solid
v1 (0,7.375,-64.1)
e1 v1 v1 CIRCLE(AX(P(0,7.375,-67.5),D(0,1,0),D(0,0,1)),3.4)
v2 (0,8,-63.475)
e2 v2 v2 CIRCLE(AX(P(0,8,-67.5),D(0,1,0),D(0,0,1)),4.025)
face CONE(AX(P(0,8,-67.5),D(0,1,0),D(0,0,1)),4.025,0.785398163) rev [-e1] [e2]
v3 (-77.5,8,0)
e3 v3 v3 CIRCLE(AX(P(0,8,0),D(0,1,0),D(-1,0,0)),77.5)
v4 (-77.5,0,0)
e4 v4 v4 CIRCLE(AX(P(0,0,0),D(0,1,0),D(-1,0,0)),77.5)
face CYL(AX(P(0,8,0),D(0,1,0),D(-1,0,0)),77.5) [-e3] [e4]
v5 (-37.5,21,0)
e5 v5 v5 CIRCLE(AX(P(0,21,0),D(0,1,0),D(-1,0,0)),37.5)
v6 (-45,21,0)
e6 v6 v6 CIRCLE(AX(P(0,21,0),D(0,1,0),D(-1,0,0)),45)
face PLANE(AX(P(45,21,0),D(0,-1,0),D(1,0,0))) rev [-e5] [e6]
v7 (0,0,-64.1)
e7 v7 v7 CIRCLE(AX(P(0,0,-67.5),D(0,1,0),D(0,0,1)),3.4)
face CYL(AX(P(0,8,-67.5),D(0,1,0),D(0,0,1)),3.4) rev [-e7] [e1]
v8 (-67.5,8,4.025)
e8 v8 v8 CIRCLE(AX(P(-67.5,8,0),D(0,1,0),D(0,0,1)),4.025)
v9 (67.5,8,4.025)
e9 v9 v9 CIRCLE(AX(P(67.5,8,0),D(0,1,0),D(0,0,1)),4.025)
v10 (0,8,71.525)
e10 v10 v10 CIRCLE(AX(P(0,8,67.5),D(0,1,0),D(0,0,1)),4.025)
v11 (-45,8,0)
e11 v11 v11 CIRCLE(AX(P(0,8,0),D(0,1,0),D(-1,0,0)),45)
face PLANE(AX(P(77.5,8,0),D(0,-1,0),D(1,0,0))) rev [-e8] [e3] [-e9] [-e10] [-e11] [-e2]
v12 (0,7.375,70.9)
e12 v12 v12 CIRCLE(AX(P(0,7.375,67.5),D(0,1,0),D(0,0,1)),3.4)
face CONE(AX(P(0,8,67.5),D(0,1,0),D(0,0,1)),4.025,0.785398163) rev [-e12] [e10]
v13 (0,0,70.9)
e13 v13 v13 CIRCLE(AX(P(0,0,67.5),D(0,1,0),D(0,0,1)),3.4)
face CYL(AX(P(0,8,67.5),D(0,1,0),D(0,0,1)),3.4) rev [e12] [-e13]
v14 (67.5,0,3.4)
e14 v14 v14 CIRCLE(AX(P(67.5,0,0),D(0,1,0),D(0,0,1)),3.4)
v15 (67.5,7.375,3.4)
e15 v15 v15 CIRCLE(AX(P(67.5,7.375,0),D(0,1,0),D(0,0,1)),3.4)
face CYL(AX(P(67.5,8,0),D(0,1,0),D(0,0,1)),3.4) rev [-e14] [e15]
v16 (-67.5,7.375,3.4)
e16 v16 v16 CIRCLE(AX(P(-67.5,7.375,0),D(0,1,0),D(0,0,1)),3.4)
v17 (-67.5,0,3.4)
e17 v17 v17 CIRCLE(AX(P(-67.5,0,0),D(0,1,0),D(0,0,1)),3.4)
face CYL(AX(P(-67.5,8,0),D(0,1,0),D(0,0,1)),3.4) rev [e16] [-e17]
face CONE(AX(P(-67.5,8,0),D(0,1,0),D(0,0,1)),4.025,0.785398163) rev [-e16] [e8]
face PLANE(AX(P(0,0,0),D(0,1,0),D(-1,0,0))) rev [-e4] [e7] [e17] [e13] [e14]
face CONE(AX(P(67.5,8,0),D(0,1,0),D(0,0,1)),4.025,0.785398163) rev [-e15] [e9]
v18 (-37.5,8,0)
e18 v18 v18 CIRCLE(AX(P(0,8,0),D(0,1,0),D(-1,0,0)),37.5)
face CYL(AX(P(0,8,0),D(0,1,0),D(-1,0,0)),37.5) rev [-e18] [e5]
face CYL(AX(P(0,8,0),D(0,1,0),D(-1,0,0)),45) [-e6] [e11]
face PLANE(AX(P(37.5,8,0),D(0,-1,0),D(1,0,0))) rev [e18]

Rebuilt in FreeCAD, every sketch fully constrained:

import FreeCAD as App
import Part
import Sketcher
Q = App.Units.Quantity


def add_polygon(sketch, points):
    """Adds a closed chain of lines whose ends are joined by coincident constraints."""
    first, n = sketch.GeometryCount, len(points)
    for a, b in zip(points, points[1:] + points[:1]):
        sketch.addGeometry(Part.LineSegment(App.Vector(*a, 0), App.Vector(*b, 0)), False)
    for i in range(n):
        sketch.addConstraint(Sketcher.Constraint("Coincident", first + i, 2, first + (i + 1) % n, 1))

doc = App.newDocument("Part")
body = doc.addObject("PartDesign::Body", "Body")

sketch1 = body.newObject("Sketcher::SketchObject", "Sketch")
sketch1.AttachmentSupport = (doc.getObject("XY_Plane"), [""])
sketch1.MapMode = "FlatFace"
add_polygon(sketch1, [(0, 0), (78, 0), (78, 8), (45, 8), (45, 21), (38, 21), (38, 8), (0, 8)])
sketch1.addConstraint([
    Sketcher.Constraint("Horizontal", 0),
    Sketcher.Constraint("Vertical", 1),
    Sketcher.Constraint("Horizontal", 2),
    Sketcher.Constraint("Vertical", 3),
    Sketcher.Constraint("Horizontal", 4),
    Sketcher.Constraint("Vertical", 5),
    Sketcher.Constraint("Horizontal", 6),
    Sketcher.Constraint("Vertical", 7),
    Sketcher.Constraint("Coincident", 7, 2, -1, 1),
    Sketcher.Constraint("Horizontal", 2, 2, 5, 2),
    Sketcher.Constraint("DistanceY", 1, 1, 1, 2, Q("8 mm")),
    Sketcher.Constraint("DistanceY", 3, 1, 3, 2, Q("13 mm")),
    Sketcher.Constraint("DistanceX", 0, 1, 0, 2, Q("77.5 mm")),
    Sketcher.Constraint("DistanceX", 2, 2, 2, 1, Q("32.5 mm")),
    Sketcher.Constraint("DistanceX", 4, 2, 4, 1, Q("7.5 mm")),
])
revolution = body.newObject("PartDesign::Revolution", "Revolution")
revolution.Profile = sketch1
revolution.ReferenceAxis = (sketch1, ["V_Axis"])
revolution.Angle = 360

sketch2 = body.newObject("Sketcher::SketchObject", "Sketch001")
sketch2.AttachmentSupport = (doc.getObject("XZ_Plane"), [""])
sketch2.MapMode = "FlatFace"
sketch2.AttachmentOffset = App.Placement(App.Vector(0, 0, -8), App.Rotation())
sketch2.addGeometry([
    Part.Circle(App.Vector(-67.5, 0, 0), App.Vector(0, 0, 1), 3.4),
    Part.Circle(App.Vector(67.5, 0, 0), App.Vector(0, 0, 1), 3.4),
    Part.Circle(App.Vector(0, 67.5, 0), App.Vector(0, 0, 1), 3.4),
    Part.Circle(App.Vector(0, -67.5, 0), App.Vector(0, 0, 1), 3.4),
], False)
sketch2.addConstraint([
    Sketcher.Constraint("Equal", 0, 1),
    Sketcher.Constraint("Equal", 1, 2),
    Sketcher.Constraint("Equal", 2, 3),
    Sketcher.Constraint("Symmetric", 0, 3, 1, 3, -1, 1),
    Sketcher.Constraint("Symmetric", 2, 3, 3, 3, -1, 1),
    Sketcher.Constraint("PointOnObject", 0, 3, -1),
    Sketcher.Constraint("PointOnObject", 2, 3, -2),
    Sketcher.Constraint("Diameter", 0, Q("6.8 mm")),
    Sketcher.Constraint("DistanceX", 0, 3, 1, 3, Q("135 mm")),
    Sketcher.Constraint("DistanceY", 3, 3, 2, 3, Q("135 mm")),
])
doc.recompute()
hole = body.newObject("PartDesign::Hole", "Hole")
hole.Profile = sketch2
hole.ThreadType = "None"
hole.Diameter = 6.8
hole.DepthType = "ThroughAll"
hole.HoleCutType = "Countersink"
hole.HoleCutDiameter = 8.05
hole.HoleCutCountersinkAngle = 90
hole.Reversed = True

doc.recompute()
